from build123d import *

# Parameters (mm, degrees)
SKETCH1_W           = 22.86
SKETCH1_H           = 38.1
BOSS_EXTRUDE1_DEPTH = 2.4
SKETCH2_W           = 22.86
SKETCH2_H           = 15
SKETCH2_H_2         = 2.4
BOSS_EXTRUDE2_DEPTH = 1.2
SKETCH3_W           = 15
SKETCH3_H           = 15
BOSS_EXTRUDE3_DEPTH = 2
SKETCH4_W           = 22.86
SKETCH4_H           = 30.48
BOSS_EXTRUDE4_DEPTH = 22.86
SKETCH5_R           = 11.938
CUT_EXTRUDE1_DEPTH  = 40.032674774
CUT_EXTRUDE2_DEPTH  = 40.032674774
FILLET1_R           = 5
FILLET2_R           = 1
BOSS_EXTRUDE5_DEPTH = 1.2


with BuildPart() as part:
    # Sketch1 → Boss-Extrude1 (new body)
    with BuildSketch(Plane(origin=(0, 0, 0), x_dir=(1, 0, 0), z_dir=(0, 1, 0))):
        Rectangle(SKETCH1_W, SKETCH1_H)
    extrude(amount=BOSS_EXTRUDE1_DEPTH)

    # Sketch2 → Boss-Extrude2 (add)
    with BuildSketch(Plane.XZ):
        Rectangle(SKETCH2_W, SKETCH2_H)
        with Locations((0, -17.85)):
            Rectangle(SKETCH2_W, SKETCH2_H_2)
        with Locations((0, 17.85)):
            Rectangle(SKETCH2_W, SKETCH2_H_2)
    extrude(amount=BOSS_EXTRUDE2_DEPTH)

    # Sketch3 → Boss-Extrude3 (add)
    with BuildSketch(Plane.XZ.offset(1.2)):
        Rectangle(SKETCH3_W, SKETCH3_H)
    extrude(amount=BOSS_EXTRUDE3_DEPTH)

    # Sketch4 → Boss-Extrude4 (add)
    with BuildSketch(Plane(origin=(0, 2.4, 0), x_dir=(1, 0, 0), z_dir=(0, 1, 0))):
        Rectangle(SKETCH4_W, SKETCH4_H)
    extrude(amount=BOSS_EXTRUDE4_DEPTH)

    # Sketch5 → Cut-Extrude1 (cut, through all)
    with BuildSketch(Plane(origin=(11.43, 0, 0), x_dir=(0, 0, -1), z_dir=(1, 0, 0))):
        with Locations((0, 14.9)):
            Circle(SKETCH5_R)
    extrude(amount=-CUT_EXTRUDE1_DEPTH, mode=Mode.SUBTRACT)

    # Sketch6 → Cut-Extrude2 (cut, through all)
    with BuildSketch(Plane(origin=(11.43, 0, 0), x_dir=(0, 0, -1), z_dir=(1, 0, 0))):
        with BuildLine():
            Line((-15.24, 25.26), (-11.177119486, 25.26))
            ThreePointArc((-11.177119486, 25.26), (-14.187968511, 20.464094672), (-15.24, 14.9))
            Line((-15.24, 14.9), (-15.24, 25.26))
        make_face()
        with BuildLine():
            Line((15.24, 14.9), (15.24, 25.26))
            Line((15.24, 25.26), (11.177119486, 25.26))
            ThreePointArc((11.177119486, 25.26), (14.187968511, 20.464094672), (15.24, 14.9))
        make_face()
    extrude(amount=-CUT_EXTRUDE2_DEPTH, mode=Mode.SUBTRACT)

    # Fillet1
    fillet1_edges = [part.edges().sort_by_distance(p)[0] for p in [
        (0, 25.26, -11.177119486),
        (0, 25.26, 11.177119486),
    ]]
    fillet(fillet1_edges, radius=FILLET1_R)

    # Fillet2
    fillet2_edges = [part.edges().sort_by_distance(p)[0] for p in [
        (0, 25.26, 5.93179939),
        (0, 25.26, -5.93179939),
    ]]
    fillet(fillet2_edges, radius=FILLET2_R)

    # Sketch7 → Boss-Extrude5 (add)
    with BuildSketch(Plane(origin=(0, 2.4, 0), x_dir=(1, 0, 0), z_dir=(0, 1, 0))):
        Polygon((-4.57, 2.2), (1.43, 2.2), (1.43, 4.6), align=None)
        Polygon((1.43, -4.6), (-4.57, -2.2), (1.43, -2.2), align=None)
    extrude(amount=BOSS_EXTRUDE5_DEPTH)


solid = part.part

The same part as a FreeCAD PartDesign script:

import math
import FreeCAD as App
import Part
import Sketcher
from FreeCAD import Vector
Q = App.Units.Quantity


def edges_at(feature, points):
    """Names of the edges that pass closest to the given points."""
    edges = feature.Shape.Edges
    near = lambda p: min(range(len(edges)), key=lambda i: edges[i].distToShape(Part.Vertex(*p))[0])
    return sorted({f"Edge{near(p) + 1}" for p in points})

doc = App.newDocument("Part")
params = doc.addObject("Spreadsheet::Sheet", "Params")
for row, (alias, value) in enumerate([
    ("sketch1_height", "38.1 mm"),
    ("sketch1_width", "22.86 mm"),
    ("pad1_length", "2.4 mm"),
    ("sketch2_height", "15 mm"),
    ("sketch2_height2", "2.4 mm"),
    ("sketch2_width", "22.86 mm"),
    ("pad2_length", "1.2 mm"),
    ("sketch3_width", "15 mm"),
    ("pad3_length", "2 mm"),
    ("sketch4_width", "22.86 mm"),
    ("sketch4_height", "30.48 mm"),
    ("pad4_length", "22.86 mm"),
    ("sketch6_radius", "15.24 mm"),
    ("sketch6_width", "10.36 mm"),
    ("fillet_radius", "5 mm"),
    ("fillet2_radius", "1 mm"),
    ("sketch7_width", "6 mm"),
    ("sketch7_height", "2.4 mm"),
    ("pad5_length", "1.2 mm"),
], start=1):
    params.set(f"A{row}", alias)
    params.set(f"B{row}", "=" + value)
    params.setAlias(f"B{row}", alias)

body = doc.addObject("PartDesign::Body", "Body")

sketch1 = body.newObject("Sketcher::SketchObject", "Sketch")
sketch1.AttachmentSupport = (doc.getObject("XZ_Plane"), [""])
sketch1.MapMode = "FlatFace"
sketch1.addGeometry([
    Part.LineSegment(Vector(-11, -19, 0), Vector(-11, 19, 0)),
    Part.LineSegment(Vector(-11, 19, 0), Vector(11, 19, 0)),
    Part.LineSegment(Vector(11, 19, 0), Vector(11, -19, 0)),
    Part.LineSegment(Vector(11, -19, 0), Vector(-11, -19, 0)),
], False)
sketch1.addConstraint([
    Sketcher.Constraint("Coincident", 0, 2, 1, 1),
    Sketcher.Constraint("Coincident", 1, 2, 2, 1),
    Sketcher.Constraint("Coincident", 2, 2, 3, 1),
    Sketcher.Constraint("Coincident", 3, 2, 0, 1),
    Sketcher.Constraint("Vertical", 0),
    Sketcher.Constraint("Horizontal", 1),
    Sketcher.Constraint("Vertical", 2),
    Sketcher.Constraint("Horizontal", 3),
    Sketcher.Constraint("Symmetric", 0, 2, 2, 2, -1, 1),
    Sketcher.Constraint("DistanceY", 0, 1, 0, 2, Q("38.1 mm")),
    Sketcher.Constraint("DistanceX", 1, 1, 1, 2, Q("22.86 mm")),
])
sketch1.setExpression("Constraints[9]", "Params.sketch1_height")
sketch1.setExpression("Constraints[10]", "Params.sketch1_width")
pad1 = body.newObject("PartDesign::Pad", "Pad")
pad1.Profile = sketch1
pad1.setExpression("Length", "Params.pad1_length")
pad1.Reversed = True

sketch2 = body.newObject("Sketcher::SketchObject", "Sketch001")
sketch2.AttachmentSupport = (doc.getObject("XZ_Plane"), [""])
sketch2.MapMode = "FlatFace"
sketch2.addGeometry([
    Part.LineSegment(Vector(-11.4, 7.5, 0), Vector(-11.4, -7.5, 0)),
    Part.LineSegment(Vector(-11.4, -7.5, 0), Vector(11.4, -7.5, 0)),
    Part.LineSegment(Vector(11.4, -7.5, 0), Vector(11.4, 7.5, 0)),
    Part.LineSegment(Vector(11.4, 7.5, 0), Vector(-11.4, 7.5, 0)),
    Part.LineSegment(Vector(-11.4, -16.6, 0), Vector(-11.4, -19.1, 0)),
    Part.LineSegment(Vector(-11.4, -19.1, 0), Vector(11.4, -19.1, 0)),
    Part.LineSegment(Vector(11.4, -19.1, 0), Vector(11.4, -16.6, 0)),
    Part.LineSegment(Vector(11.4, -16.6, 0), Vector(-11.4, -16.6, 0)),
    Part.LineSegment(Vector(-11.4, 19.1, 0), Vector(-11.4, 16.6, 0)),
    Part.LineSegment(Vector(-11.4, 16.6, 0), Vector(11.4, 16.6, 0)),
    Part.LineSegment(Vector(11.4, 16.6, 0), Vector(11.4, 19.1, 0)),
    Part.LineSegment(Vector(11.4, 19.1, 0), Vector(-11.4, 19.1, 0)),
], False)
sketch2.addConstraint([
    Sketcher.Constraint("Coincident", 0, 2, 1, 1),
    Sketcher.Constraint("Coincident", 1, 2, 2, 1),
    Sketcher.Constraint("Coincident", 2, 2, 3, 1),
    Sketcher.Constraint("Coincident", 3, 2, 0, 1),
    Sketcher.Constraint("Coincident", 4, 2, 5, 1),
    Sketcher.Constraint("Coincident", 5, 2, 6, 1),
    Sketcher.Constraint("Coincident", 6, 2, 7, 1),
    Sketcher.Constraint("Coincident", 7, 2, 4, 1),
    Sketcher.Constraint("Coincident", 8, 2, 9, 1),
    Sketcher.Constraint("Coincident", 9, 2, 10, 1),
    Sketcher.Constraint("Coincident", 10, 2, 11, 1),
    Sketcher.Constraint("Coincident", 11, 2, 8, 1),
    Sketcher.Constraint("Vertical", 0),
    Sketcher.Constraint("Horizontal", 1),
    Sketcher.Constraint("Vertical", 2),
    Sketcher.Constraint("Horizontal", 3),
    Sketcher.Constraint("Vertical", 4),
    Sketcher.Constraint("Horizontal", 5),
    Sketcher.Constraint("Vertical", 6),
    Sketcher.Constraint("Horizontal", 7),
    Sketcher.Constraint("Vertical", 8),
    Sketcher.Constraint("Horizontal", 9),
    Sketcher.Constraint("Vertical", 10),
    Sketcher.Constraint("Horizontal", 11),
    Sketcher.Constraint("Symmetric", 0, 2, 2, 2, -1, 1),
    Sketcher.Constraint("Symmetric", 6, 2, 8, 2, -1, 1),
    Sketcher.Constraint("Symmetric", 4, 2, 10, 2, -1, 1),
    Sketcher.Constraint("Vertical", 3, 2, 4, 2),
    Sketcher.Constraint("Vertical", 2, 2, 5, 2),
    Sketcher.Constraint("DistanceY", 0, 2, 0, 1, Q("15 mm")),
    Sketcher.Constraint("DistanceY", 4, 2, 4, 1, Q("2.4 mm")),
    Sketcher.Constraint("DistanceX", 1, 1, 1, 2, Q("22.86 mm")),
    Sketcher.Constraint("DistanceY", 7, 2, 8, 2, Q("33.3 mm")),
])
sketch2.setExpression("Constraints[29]", "Params.sketch2_height")
sketch2.setExpression("Constraints[30]", "Params.sketch2_height2")
sketch2.setExpression("Constraints[31]", "Params.sketch2_width")
pad2 = body.newObject("PartDesign::Pad", "Pad001")
pad2.Profile = sketch2
pad2.setExpression("Length", "Params.pad2_length")

sketch3 = body.newObject("Sketcher::SketchObject", "Sketch002")
sketch3.AttachmentSupport = (doc.getObject("XZ_Plane"), [""])
sketch3.MapMode = "FlatFace"
sketch3.AttachmentOffset = App.Placement(Vector(0, 0, 1.2), App.Rotation())
sketch3.addGeometry([
    Part.LineSegment(Vector(-8, 8, 0), Vector(-8, -8, 0)),
    Part.LineSegment(Vector(-8, -8, 0), Vector(8, -8, 0)),
    Part.LineSegment(Vector(8, -8, 0), Vector(8, 8, 0)),
    Part.LineSegment(Vector(8, 8, 0), Vector(-8, 8, 0)),
], False)
sketch3.addConstraint([
    Sketcher.Constraint("Coincident", 0, 2, 1, 1),
    Sketcher.Constraint("Coincident", 1, 2, 2, 1),
    Sketcher.Constraint("Coincident", 2, 2, 3, 1),
    Sketcher.Constraint("Coincident", 3, 2, 0, 1),
    Sketcher.Constraint("Vertical", 0),
    Sketcher.Constraint("Horizontal", 1),
    Sketcher.Constraint("Vertical", 2),
    Sketcher.Constraint("Horizontal", 3),
    Sketcher.Constraint("Symmetric", 0, 2, 2, 2, -1, 1),
    Sketcher.Constraint("Equal", 3, 0),
    Sketcher.Constraint("DistanceX", 1, 1, 1, 2, Q("15 mm")),
])
sketch3.setExpression("Constraints[10]", "Params.sketch3_width")
pad3 = body.newObject("PartDesign::Pad", "Pad002")
pad3.Profile = sketch3
pad3.setExpression("Length", "Params.pad3_length")

sketch4 = body.newObject("Sketcher::SketchObject", "Sketch003")
sketch4.AttachmentSupport = (doc.getObject("XZ_Plane"), [""])
sketch4.MapMode = "FlatFace"
sketch4.AttachmentOffset = App.Placement(Vector(0, 0, -2.4), App.Rotation())
sketch4.addGeometry([
    Part.LineSegment(Vector(-11, -15, 0), Vector(-11, 15, 0)),
    Part.LineSegment(Vector(-11, 15, 0), Vector(11, 15, 0)),
    Part.LineSegment(Vector(11, 15, 0), Vector(11, -15, 0)),
    Part.LineSegment(Vector(11, -15, 0), Vector(-11, -15, 0)),
], False)
sketch4.addConstraint([
    Sketcher.Constraint("Coincident", 0, 2, 1, 1),
    Sketcher.Constraint("Coincident", 1, 2, 2, 1),
    Sketcher.Constraint("Coincident", 2, 2, 3, 1),
    Sketcher.Constraint("Coincident", 3, 2, 0, 1),
    Sketcher.Constraint("Vertical", 0),
    Sketcher.Constraint("Horizontal", 1),
    Sketcher.Constraint("Vertical", 2),
    Sketcher.Constraint("Horizontal", 3),
    Sketcher.Constraint("Symmetric", 0, 2, 2, 2, -1, 1),
    Sketcher.Constraint("DistanceX", 1, 1, 1, 2, Q("22.86 mm")),
    Sketcher.Constraint("DistanceY", 0, 1, 0, 2, Q("30.48 mm")),
])
sketch4.setExpression("Constraints[9]", "Params.sketch4_width")
sketch4.setExpression("Constraints[10]", "Params.sketch4_height")
pad4 = body.newObject("PartDesign::Pad", "Pad003")
pad4.Profile = sketch4
pad4.setExpression("Length", "Params.pad4_length")
pad4.Reversed = True

sketch5 = body.newObject("Sketcher::SketchObject", "Sketch004")
sketch5.AttachmentSupport = (doc.getObject("YZ_Plane"), [""])
sketch5.MapMode = "FlatFace"
sketch5.AttachmentOffset = App.Placement(Vector(0, 0, 11.43), App.Rotation())
sketch5.addGeometry(Part.Circle(Vector(15, 0, 0), Vector(0, 0, 1), 12), False)
sketch5.addConstraint([
    Sketcher.Constraint("PointOnObject", 0, 3, -1),
    Sketcher.Constraint("Diameter", 0, Q("23.876 mm")),
    Sketcher.Constraint("DistanceX", -1, 1, 0, 3, Q("14.9 mm")),
])
pocket1 = body.newObject("PartDesign::Pocket", "Pocket")
pocket1.Profile = sketch5
pocket1.Type = "ThroughAll"

sketch6 = body.newObject("Sketcher::SketchObject", "Sketch005")
sketch6.AttachmentSupport = (doc.getObject("YZ_Plane"), [""])
sketch6.MapMode = "FlatFace"
sketch6.AttachmentOffset = App.Placement(Vector(0, 0, 11.43), App.Rotation())
sketch6.addGeometry([
    Part.LineSegment(Vector(25.3, 11.2, 0), Vector(25.3, 15.2, 0)),
    Part.LineSegment(Vector(25.3, 15.2, 0), Vector(14.9, 15.2, 0)),
    Part.ArcOfCircle(Part.Circle(Vector(14.9, 0, 0), Vector(0, 0, 1), 15.2), math.radians(47), math.radians(90)),
    Part.LineSegment(Vector(14.9, -15.2, 0), Vector(25.3, -15.2, 0)),
    Part.LineSegment(Vector(25.3, -15.2, 0), Vector(25.3, -11.2, 0)),
    Part.ArcOfCircle(Part.Circle(Vector(14.9, 0, 0), Vector(0, 0, 1), 15.2), math.radians(-90), math.radians(-47)),
], False)
sketch6.addConstraint([
    Sketcher.Constraint("Coincident", 0, 2, 1, 1),
    Sketcher.Constraint("Tangent", 1, 2, 2, 2),
    Sketcher.Constraint("Coincident", 2, 1, 0, 1),
    Sketcher.Constraint("Coincident", 3, 2, 4, 1),
    Sketcher.Constraint("Coincident", 4, 2, 5, 2),
    Sketcher.Constraint("Tangent", 5, 1, 3, 1),
    Sketcher.Constraint("Vertical", 0),
    Sketcher.Constraint("Horizontal", 1),
    Sketcher.Constraint("Horizontal", 3),
    Sketcher.Constraint("Vertical", 4),
    Sketcher.Constraint("Coincident", 5, 3, 2, 3),
    Sketcher.Constraint("Equal", 2, 5),
    Sketcher.Constraint("Symmetric", 0, 2, 3, 2, -1),
    Sketcher.Constraint("Radius", 2, Q("15.24 mm")),
    Sketcher.Constraint("DistanceX", 1, 2, 1, 1, Q("10.36 mm")),
    Sketcher.Constraint("DistanceX", -1, 1, 2, 3, Q("14.9 mm")),
])
sketch6.setExpression("Constraints[13]", "Params.sketch6_radius")
sketch6.setExpression("Constraints[14]", "Params.sketch6_width")
pocket2 = body.newObject("PartDesign::Pocket", "Pocket001")
pocket2.Profile = sketch6
pocket2.Type = "ThroughAll"
doc.recompute()

fillet = body.newObject("PartDesign::Fillet", "Fillet")
fillet.Base = (pocket2, edges_at(pocket2, [(0, 25.26, -11.177), (0, 25.26, 11.177)]))
fillet.setExpression("Radius", "Params.fillet_radius")
doc.recompute()

fillet2 = body.newObject("PartDesign::Fillet", "Fillet001")
fillet2.Base = (fillet, edges_at(fillet, [(0, 25.26, 5.932), (0, 25.26, -5.932)]))
fillet2.setExpression("Radius", "Params.fillet2_radius")

sketch7 = body.newObject("Sketcher::SketchObject", "Sketch006")
sketch7.AttachmentSupport = (doc.getObject("XZ_Plane"), [""])
sketch7.MapMode = "FlatFace"
sketch7.AttachmentOffset = App.Placement(Vector(0, 0, -2.4), App.Rotation())
sketch7.addGeometry([
    Part.LineSegment(Vector(-4.6, -2.2, 0), Vector(1.4, -2.2, 0)),
    Part.LineSegment(Vector(1.4, -2.2, 0), Vector(1.4, -4.6, 0)),
    Part.LineSegment(Vector(1.4, -4.6, 0), Vector(-4.6, -2.2, 0)),
    Part.LineSegment(Vector(-4.6, 2.2, 0), Vector(1.4, 4.6, 0)),
    Part.LineSegment(Vector(1.4, 4.6, 0), Vector(1.4, 2.2, 0)),
    Part.LineSegment(Vector(1.4, 2.2, 0), Vector(-4.6, 2.2, 0)),
], False)
sketch7.addConstraint([
    Sketcher.Constraint("Coincident", 0, 2, 1, 1),
    Sketcher.Constraint("Coincident", 1, 2, 2, 1),
    Sketcher.Constraint("Coincident", 2, 2, 0, 1),
    Sketcher.Constraint("Coincident", 3, 2, 4, 1),
    Sketcher.Constraint("Coincident", 4, 2, 5, 1),
    Sketcher.Constraint("Coincident", 5, 2, 3, 1),
    Sketcher.Constraint("Horizontal", 0),
    Sketcher.Constraint("Vertical", 1),
    Sketcher.Constraint("Vertical", 4),
    Sketcher.Constraint("Horizontal", 5),
    Sketcher.Constraint("Symmetric", 1, 2, 3, 2, -1),
    Sketcher.Constraint("Symmetric", 2, 2, 5, 2, -1),
    Sketcher.Constraint("DistanceX", 0, 1, 0, 2, Q("6 mm")),
    Sketcher.Constraint("DistanceY", 1, 2, 1, 1, Q("2.4 mm")),
    Sketcher.Constraint("DistanceY", 0, 2, -1, 1, Q("2.2 mm")),
    Sketcher.Constraint("DistanceX", -1, 1, 0, 2, Q("1.43 mm")),
])
sketch7.setExpression("Constraints[12]", "Params.sketch7_width")
sketch7.setExpression("Constraints[13]", "Params.sketch7_height")
pad5 = body.newObject("PartDesign::Pad", "Pad004")
pad5.Profile = sketch7
pad5.setExpression("Length", "Params.pad5_length")
pad5.Reversed = True

doc.recompute()
